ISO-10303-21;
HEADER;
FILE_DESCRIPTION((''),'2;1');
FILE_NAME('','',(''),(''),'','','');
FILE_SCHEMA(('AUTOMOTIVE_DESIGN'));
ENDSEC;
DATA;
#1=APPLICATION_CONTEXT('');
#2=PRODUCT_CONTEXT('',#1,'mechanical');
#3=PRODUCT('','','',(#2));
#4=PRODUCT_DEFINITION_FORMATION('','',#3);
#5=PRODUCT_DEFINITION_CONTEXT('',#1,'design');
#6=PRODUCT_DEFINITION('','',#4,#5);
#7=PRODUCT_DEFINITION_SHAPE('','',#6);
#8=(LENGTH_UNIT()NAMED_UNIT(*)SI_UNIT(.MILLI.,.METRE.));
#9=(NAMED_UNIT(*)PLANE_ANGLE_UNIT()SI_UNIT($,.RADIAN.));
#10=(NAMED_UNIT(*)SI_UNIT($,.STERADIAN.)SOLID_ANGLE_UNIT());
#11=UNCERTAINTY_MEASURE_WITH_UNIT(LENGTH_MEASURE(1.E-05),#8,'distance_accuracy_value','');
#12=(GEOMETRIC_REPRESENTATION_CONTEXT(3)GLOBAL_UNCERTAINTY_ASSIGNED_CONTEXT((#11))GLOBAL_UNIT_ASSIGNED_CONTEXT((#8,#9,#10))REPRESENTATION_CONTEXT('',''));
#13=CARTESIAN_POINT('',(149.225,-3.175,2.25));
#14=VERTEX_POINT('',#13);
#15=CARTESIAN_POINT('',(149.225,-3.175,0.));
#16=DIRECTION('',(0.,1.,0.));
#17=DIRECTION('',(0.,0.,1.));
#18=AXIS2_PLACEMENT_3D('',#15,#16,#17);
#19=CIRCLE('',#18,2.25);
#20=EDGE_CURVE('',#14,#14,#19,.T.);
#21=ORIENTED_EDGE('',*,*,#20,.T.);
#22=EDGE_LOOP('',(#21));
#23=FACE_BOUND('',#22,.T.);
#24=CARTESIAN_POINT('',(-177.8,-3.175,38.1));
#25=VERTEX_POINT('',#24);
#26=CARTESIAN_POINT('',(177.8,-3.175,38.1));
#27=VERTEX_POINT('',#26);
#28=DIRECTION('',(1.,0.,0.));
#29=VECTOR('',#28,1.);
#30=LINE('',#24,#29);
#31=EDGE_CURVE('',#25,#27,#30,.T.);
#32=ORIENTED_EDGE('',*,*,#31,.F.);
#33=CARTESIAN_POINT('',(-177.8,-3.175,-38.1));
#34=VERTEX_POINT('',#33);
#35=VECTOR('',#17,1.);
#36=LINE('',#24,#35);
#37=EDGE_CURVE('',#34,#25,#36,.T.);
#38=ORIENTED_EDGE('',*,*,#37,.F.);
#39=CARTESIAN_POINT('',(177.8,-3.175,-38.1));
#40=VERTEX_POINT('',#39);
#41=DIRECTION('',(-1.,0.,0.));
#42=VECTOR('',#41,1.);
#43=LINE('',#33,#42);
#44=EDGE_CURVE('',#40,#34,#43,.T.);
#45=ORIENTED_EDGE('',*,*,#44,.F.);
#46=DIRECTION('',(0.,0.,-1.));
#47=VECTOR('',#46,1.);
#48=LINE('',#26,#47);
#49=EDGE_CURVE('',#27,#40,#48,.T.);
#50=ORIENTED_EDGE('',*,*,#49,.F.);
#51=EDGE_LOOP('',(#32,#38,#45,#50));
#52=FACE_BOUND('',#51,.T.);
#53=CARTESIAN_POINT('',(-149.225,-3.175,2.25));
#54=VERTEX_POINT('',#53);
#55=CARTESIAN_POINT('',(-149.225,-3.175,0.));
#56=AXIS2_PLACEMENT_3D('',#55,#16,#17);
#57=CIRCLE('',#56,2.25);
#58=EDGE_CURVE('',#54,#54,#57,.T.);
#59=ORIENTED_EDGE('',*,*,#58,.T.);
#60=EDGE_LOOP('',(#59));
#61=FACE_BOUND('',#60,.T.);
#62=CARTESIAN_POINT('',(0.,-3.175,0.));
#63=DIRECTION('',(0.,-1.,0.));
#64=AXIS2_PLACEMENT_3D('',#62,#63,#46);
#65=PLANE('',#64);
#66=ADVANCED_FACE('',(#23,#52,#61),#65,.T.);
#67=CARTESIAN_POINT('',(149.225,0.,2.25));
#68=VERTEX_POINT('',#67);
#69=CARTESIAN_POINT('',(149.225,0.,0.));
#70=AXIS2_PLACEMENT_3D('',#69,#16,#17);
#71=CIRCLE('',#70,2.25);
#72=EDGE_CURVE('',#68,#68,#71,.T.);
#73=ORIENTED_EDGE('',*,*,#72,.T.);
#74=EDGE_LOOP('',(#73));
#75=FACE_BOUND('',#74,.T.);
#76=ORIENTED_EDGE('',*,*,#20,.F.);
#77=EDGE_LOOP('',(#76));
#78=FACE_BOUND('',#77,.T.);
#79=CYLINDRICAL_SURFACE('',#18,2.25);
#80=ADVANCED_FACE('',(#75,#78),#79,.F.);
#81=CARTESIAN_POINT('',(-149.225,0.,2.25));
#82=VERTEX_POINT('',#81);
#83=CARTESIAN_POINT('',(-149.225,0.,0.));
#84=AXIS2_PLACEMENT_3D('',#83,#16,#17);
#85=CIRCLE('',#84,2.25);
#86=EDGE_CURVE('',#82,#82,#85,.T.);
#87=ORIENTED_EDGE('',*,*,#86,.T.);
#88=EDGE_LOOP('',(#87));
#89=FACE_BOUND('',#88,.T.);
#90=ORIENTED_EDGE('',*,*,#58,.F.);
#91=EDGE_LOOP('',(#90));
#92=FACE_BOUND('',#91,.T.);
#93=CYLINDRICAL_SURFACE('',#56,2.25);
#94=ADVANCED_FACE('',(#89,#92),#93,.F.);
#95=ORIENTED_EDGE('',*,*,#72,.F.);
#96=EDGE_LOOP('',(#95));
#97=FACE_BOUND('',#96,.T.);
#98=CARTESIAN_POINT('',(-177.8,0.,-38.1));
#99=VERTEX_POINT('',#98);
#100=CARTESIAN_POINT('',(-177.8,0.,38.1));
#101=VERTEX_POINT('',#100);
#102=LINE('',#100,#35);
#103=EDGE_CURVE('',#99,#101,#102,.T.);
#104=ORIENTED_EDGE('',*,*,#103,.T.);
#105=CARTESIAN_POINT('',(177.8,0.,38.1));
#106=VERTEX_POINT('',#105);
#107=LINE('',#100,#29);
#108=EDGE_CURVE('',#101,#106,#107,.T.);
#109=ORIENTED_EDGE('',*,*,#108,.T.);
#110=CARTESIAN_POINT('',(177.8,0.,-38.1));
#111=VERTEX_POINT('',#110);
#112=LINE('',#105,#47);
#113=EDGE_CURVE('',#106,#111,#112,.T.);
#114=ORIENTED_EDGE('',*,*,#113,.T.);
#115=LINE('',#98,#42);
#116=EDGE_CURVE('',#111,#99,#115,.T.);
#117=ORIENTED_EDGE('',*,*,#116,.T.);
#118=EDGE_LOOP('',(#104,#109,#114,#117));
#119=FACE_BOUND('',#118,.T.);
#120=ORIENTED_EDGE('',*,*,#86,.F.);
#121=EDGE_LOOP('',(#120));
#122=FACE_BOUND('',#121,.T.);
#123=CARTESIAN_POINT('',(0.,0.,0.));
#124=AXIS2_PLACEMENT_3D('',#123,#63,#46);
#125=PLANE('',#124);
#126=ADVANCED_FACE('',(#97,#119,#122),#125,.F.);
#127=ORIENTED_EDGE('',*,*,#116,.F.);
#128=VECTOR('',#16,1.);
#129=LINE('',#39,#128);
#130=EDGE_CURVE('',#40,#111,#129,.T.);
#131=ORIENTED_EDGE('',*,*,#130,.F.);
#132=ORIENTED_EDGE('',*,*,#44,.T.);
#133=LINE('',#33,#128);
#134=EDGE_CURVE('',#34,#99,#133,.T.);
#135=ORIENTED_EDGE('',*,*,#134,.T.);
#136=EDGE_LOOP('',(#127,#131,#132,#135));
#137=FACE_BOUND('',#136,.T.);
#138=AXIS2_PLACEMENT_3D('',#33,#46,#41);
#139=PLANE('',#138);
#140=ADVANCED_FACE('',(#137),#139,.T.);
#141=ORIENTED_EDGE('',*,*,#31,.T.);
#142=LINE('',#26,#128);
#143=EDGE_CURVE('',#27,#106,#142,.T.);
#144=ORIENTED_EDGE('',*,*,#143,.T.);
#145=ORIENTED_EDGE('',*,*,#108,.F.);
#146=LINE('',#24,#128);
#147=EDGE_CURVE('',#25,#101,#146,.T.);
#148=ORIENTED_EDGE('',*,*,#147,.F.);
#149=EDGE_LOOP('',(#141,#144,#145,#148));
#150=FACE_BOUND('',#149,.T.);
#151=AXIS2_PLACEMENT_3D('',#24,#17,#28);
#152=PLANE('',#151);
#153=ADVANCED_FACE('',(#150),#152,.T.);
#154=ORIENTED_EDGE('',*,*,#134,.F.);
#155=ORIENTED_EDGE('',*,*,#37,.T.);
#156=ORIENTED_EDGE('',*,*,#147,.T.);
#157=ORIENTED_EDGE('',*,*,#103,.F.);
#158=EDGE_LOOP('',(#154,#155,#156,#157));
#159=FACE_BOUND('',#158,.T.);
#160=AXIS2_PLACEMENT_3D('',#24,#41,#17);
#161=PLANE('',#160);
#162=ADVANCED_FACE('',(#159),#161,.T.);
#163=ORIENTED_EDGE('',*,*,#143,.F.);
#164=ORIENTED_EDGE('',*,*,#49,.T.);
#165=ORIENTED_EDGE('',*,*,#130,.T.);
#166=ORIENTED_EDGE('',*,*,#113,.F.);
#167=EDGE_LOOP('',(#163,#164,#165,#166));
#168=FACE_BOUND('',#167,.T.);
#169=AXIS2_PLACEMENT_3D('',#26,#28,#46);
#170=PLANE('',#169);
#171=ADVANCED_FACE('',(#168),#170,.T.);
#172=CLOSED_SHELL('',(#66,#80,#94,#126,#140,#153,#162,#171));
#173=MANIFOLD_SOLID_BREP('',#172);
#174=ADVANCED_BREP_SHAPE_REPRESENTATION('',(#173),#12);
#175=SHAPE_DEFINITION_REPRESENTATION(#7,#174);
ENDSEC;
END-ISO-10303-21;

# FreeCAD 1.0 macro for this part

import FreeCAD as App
import Part
import Sketcher
Q = App.Units.Quantity


def add_polygon(sketch, points):
    """Adds a closed chain of lines whose ends are joined by coincident constraints."""
    first, n = sketch.GeometryCount, len(points)
    for a, b in zip(points, points[1:] + points[:1]):
        sketch.addGeometry(Part.LineSegment(App.Vector(*a, 0), App.Vector(*b, 0)), False)
    for i in range(n):
        sketch.addConstraint(Sketcher.Constraint("Coincident", first + i, 2, first + (i + 1) % n, 1))

doc = App.newDocument("Part")
body = doc.addObject("PartDesign::Body", "Body")

# Sketch on XZ plane
sketch1 = body.newObject("Sketcher::SketchObject", "Sketch")
sketch1.AttachmentSupport = (doc.getObject("XZ_Plane"), [""])
sketch1.MapMode = "FlatFace"
add_polygon(sketch1, [(-177.8, -38.1), (-177.8, 38.1), (177.8, 38.1), (177.8, -38.1)])  # lines 0-3
sketch1.addGeometry(Part.Circle(App.Vector(-149.2, 0, 0), App.Vector(0, 0, 1), 2.2), False)  # 4
sketch1.addGeometry(Part.Circle(App.Vector(149.2, 0, 0), App.Vector(0, 0, 1), 2.2), False)  # 5
sketch1.addConstraint([
    Sketcher.Constraint("Vertical", 0),
    Sketcher.Constraint("Horizontal", 1),
    Sketcher.Constraint("Vertical", 2),
    Sketcher.Constraint("Horizontal", 3),
    Sketcher.Constraint("Equal", 4, 5),
    Sketcher.Constraint("Symmetric", 4, 3, 5, 3, -1, 1),
    Sketcher.Constraint("Symmetric", 0, 2, 2, 2, -1, 1),
    Sketcher.Constraint("PointOnObject", 4, 3, -1),
    Sketcher.Constraint("DistanceX", 1, 1, 1, 2, Q("14 in")),
    Sketcher.Constraint("DistanceY", 0, 1, 0, 2, Q("3 in")),
    Sketcher.Constraint("Diameter", 4, 4.5),
    Sketcher.Constraint("DistanceX", 4, 3, 5, 3, Q("11.75 in")),
])
pad1 = body.newObject("PartDesign::Pad", "Pad")
pad1.Profile = sketch1
pad1.Length = Q("0.125 in")

doc.recompute()
